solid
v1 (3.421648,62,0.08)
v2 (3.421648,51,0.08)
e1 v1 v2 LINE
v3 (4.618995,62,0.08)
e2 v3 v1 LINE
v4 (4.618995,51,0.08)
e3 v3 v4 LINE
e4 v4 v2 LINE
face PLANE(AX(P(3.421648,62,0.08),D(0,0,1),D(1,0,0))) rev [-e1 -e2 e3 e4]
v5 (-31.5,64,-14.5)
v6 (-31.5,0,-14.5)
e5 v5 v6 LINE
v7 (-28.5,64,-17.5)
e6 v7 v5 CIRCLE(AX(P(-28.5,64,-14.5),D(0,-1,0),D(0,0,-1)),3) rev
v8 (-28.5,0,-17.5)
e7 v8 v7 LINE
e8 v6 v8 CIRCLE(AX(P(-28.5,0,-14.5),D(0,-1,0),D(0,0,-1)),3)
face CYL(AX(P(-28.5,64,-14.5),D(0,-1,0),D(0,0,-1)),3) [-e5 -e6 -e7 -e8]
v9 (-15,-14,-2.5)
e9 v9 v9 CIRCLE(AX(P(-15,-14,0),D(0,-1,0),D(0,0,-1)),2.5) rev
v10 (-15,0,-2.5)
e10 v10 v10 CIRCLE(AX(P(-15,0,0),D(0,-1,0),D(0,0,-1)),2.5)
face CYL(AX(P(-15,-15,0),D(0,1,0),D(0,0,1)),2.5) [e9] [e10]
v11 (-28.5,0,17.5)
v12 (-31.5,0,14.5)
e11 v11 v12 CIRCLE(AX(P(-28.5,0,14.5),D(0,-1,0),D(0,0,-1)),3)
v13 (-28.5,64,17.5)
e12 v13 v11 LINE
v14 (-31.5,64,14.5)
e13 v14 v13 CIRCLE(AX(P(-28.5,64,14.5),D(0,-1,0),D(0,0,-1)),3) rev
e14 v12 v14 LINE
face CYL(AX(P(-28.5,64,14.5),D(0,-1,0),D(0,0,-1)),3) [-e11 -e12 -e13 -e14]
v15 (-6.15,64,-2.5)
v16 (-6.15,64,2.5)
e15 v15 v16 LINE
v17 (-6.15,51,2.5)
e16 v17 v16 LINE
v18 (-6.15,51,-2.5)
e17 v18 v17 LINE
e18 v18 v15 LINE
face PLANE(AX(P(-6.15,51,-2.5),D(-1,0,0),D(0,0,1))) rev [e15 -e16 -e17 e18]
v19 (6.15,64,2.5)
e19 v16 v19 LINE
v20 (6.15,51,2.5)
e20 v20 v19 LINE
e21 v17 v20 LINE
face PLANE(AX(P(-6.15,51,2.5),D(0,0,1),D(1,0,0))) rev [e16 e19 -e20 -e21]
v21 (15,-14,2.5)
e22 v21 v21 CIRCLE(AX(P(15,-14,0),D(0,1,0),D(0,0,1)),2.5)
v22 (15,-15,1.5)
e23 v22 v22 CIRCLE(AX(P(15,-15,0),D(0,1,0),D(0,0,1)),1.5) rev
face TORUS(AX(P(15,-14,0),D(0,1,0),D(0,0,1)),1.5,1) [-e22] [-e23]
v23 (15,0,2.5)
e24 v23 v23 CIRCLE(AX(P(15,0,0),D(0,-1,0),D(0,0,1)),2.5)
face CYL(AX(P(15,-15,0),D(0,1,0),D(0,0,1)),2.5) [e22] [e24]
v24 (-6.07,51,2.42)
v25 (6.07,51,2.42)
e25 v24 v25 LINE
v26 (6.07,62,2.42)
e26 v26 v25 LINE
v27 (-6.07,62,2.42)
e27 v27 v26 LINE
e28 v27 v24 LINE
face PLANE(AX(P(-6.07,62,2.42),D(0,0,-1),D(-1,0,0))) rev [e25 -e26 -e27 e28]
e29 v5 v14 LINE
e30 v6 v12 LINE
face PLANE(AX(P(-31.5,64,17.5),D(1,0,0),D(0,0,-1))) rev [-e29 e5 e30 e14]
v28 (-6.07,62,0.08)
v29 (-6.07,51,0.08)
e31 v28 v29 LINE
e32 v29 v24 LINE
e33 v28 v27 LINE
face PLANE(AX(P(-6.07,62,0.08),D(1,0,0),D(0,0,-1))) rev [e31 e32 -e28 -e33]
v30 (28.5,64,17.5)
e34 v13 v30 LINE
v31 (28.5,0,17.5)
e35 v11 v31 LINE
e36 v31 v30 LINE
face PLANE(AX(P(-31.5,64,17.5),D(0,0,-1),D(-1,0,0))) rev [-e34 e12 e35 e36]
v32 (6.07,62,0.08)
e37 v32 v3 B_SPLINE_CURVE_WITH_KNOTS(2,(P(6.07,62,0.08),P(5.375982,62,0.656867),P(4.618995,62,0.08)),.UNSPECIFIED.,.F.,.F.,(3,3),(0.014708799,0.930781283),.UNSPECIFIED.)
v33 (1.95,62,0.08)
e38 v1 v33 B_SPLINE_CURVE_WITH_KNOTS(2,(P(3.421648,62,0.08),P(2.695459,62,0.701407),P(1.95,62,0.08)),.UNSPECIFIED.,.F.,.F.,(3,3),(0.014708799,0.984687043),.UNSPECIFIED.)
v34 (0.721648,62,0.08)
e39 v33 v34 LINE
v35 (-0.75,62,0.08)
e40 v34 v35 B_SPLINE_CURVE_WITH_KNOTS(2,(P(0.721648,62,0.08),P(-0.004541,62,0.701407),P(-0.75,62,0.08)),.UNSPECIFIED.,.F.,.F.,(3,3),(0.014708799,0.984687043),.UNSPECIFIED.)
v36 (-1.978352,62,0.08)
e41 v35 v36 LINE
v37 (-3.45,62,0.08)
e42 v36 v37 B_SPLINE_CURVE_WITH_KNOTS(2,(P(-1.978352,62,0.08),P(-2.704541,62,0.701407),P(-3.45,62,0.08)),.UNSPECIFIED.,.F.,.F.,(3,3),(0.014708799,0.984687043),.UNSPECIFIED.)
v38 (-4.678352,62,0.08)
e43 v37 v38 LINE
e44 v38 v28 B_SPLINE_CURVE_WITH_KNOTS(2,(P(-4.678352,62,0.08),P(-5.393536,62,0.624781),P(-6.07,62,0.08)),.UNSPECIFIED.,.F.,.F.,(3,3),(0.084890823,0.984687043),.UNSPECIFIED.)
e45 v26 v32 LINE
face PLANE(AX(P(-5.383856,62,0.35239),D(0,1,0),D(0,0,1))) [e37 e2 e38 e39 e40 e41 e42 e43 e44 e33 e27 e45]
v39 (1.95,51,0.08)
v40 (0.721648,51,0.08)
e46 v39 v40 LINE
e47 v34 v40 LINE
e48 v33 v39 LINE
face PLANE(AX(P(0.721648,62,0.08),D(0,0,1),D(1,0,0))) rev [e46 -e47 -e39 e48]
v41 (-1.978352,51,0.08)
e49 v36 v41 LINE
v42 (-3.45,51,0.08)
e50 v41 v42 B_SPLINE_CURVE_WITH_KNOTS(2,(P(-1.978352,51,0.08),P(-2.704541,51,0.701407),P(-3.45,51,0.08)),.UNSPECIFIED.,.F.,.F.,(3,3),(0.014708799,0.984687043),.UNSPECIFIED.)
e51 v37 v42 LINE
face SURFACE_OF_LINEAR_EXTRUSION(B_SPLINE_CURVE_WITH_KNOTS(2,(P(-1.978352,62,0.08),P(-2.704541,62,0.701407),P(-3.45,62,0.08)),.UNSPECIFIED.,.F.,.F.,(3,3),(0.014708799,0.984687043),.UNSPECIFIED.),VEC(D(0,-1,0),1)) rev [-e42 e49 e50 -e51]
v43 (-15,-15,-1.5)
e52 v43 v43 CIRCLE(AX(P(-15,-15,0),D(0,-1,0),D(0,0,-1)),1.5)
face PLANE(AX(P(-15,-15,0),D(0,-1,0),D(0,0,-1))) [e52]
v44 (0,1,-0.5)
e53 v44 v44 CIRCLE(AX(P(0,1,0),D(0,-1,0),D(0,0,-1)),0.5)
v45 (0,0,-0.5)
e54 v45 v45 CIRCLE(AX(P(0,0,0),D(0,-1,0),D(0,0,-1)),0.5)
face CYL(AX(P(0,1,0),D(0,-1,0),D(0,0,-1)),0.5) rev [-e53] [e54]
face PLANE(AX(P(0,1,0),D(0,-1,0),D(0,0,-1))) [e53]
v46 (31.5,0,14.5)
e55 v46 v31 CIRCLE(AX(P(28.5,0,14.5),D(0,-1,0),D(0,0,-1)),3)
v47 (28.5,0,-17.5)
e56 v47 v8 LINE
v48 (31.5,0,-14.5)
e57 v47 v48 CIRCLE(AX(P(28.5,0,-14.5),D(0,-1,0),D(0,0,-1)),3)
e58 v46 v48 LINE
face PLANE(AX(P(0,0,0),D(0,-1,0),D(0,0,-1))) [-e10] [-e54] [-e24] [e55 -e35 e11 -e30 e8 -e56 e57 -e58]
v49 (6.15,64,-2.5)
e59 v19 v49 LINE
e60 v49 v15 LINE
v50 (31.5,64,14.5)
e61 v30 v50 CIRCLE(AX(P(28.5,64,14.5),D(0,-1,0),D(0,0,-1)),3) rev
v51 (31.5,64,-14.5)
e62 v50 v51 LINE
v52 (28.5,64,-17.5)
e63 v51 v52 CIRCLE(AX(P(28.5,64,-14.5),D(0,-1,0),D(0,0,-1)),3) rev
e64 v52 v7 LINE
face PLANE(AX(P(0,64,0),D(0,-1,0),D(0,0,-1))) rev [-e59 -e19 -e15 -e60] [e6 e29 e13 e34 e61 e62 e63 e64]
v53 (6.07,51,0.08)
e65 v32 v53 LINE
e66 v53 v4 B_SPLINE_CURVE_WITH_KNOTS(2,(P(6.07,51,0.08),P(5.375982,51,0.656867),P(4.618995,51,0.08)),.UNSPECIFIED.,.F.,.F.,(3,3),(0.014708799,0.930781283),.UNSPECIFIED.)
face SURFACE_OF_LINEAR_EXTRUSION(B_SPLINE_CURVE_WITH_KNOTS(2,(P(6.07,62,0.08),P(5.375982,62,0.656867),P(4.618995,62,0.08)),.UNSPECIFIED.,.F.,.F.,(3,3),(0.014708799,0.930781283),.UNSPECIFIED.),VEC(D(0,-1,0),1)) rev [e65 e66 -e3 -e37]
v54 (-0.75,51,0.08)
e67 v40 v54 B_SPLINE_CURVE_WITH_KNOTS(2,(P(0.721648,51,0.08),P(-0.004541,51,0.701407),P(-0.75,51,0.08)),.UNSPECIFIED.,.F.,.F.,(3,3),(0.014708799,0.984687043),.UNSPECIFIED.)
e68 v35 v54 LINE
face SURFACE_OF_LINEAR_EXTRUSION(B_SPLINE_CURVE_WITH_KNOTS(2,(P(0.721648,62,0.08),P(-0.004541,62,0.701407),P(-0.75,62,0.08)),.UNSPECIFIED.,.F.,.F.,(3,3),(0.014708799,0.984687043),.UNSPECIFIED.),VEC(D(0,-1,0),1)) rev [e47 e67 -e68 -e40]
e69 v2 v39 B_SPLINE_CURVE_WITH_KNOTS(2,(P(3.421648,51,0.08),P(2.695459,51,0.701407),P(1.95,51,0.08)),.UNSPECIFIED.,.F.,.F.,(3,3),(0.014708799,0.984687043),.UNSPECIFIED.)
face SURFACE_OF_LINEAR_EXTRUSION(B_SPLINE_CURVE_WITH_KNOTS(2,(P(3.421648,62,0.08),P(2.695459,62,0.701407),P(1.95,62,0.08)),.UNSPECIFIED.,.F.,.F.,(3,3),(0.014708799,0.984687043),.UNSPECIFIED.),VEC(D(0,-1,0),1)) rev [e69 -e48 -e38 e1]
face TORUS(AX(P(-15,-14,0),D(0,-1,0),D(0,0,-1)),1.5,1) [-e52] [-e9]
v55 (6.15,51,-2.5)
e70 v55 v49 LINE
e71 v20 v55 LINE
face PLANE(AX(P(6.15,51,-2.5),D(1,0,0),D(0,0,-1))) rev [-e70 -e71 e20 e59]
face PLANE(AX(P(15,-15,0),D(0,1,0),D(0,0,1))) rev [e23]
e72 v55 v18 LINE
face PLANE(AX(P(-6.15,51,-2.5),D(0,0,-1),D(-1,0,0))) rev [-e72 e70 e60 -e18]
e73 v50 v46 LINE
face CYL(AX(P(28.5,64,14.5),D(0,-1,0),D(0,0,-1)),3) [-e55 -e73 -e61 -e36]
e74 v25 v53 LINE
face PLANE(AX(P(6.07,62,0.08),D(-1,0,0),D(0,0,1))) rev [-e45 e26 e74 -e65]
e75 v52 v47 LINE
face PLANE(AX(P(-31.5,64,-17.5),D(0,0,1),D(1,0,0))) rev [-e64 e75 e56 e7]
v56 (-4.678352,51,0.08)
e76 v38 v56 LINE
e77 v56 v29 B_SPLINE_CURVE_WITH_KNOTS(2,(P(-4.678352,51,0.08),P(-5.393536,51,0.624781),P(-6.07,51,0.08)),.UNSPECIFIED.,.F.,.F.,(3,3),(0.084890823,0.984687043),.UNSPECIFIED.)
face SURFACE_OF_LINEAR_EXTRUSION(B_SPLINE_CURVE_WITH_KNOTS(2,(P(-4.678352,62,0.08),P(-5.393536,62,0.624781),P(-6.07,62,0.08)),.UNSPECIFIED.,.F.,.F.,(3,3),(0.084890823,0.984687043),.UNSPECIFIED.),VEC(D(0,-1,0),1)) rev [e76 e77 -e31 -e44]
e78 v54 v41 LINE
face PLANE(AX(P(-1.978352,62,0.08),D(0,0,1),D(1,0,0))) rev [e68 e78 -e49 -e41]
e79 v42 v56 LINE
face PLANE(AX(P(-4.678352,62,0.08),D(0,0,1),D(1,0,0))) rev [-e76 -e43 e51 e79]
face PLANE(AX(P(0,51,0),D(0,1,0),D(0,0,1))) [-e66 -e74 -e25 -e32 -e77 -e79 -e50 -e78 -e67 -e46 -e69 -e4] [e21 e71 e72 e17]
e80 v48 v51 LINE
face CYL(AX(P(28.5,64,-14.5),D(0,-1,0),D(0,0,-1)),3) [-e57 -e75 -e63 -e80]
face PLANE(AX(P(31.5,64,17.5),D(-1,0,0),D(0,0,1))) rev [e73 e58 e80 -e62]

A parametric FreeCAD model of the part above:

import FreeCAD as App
import Part
import Sketcher

V = App.Vector


def edges_at(feature, points):
    """Names of the edges that pass closest to the given points."""
    edges = feature.Shape.Edges
    near = lambda p: min(range(len(edges)), key=lambda i: edges[i].distToShape(Part.Vertex(*p))[0])
    return sorted({f"Edge{near(p) + 1}" for p in points})


def add_polygon(sketch, points):
    """Adds a closed chain of lines whose ends are joined by coincident constraints."""
    first, n = sketch.GeometryCount, len(points)
    for a, b in zip(points, points[1:] + points[:1]):
        sketch.addGeometry(Part.LineSegment(App.Vector(*a, 0), App.Vector(*b, 0)), False)
    for i in range(n):
        sketch.addConstraint(Sketcher.Constraint("Coincident", first + i, 2, first + (i + 1) % n, 1))

doc = App.newDocument("Part")
body = doc.addObject("PartDesign::Body", "Body")

sketch1 = body.newObject("Sketcher::SketchObject", "Sketch")
sketch1.AttachmentSupport = (doc.getObject("XZ_Plane"), [""])
sketch1.MapMode = "FlatFace"
add_polygon(sketch1, [(-32, -18), (-32, 18), (32, 18), (32, -18)])
sketch1.addConstraint([
    Sketcher.Constraint("Vertical", 0),
    Sketcher.Constraint("Horizontal", 1),
    Sketcher.Constraint("Vertical", 2),
    Sketcher.Constraint("Horizontal", 3),
    Sketcher.Constraint("Symmetric", 0, 2, 2, 2, -1, 1),
    Sketcher.Constraint("DistanceX", 1, 1, 1, 2, 63.0),
    Sketcher.Constraint("DistanceY", 0, 1, 0, 2, 35.0),
])
pad1 = body.newObject("PartDesign::Pad", "Pad")
pad1.Profile = sketch1
pad1.Length = 64
pad1.Reversed = True
doc.recompute()

fillet = body.newObject("PartDesign::Fillet", "Fillet")
fillet.Base = (pad1, edges_at(pad1, [
    (31.5, 32, 17.5),
    (-31.5, 32, 17.5),
    (-31.5, 32, -17.5),
    (31.5, 32, -17.5),
]))
fillet.Radius = 3

sketch2 = body.newObject("Sketcher::SketchObject", "Sketch001")
sketch2.AttachmentSupport = (doc.getObject("XZ_Plane"), [""])
sketch2.MapMode = "FlatFace"
sketch2.addGeometry([
    Part.Circle(V(-15, 0, 0), V(0, 0, 1), 2.5),
    Part.Circle(V(15, 0, 0), V(0, 0, 1), 2.5),
], False)
sketch2.addConstraint([
    Sketcher.Constraint("Equal", 0, 1),
    Sketcher.Constraint("Symmetric", 0, 3, 1, 3, -1, 1),
    Sketcher.Constraint("PointOnObject", 0, 3, -1),
    Sketcher.Constraint("Diameter", 0, 5.0),
    Sketcher.Constraint("DistanceX", 0, 3, -1, 1, 15.0),
])
pad2 = body.newObject("PartDesign::Pad", "Pad001")
pad2.Profile = sketch2
pad2.Length = 15
doc.recompute()

fillet2 = body.newObject("PartDesign::Fillet", "Fillet001")
fillet2.Base = (pad2, edges_at(pad2, [(-15, -15, 2.5), (15, -15, -2.5)]))
fillet2.Radius = 1

sketch3 = body.newObject("Sketcher::SketchObject", "Sketch002")
sketch3.AttachmentSupport = (doc.getObject("XZ_Plane"), [""])
sketch3.MapMode = "FlatFace"
sketch3.addGeometry(Part.Circle(V(0, 0, 0), V(0, 0, 1), 0.5), False)
sketch3.addConstraint([
    Sketcher.Constraint("Coincident", 0, 3, -1, 1),
    Sketcher.Constraint("Diameter", 0, 1.0),
])
pocket1 = body.newObject("PartDesign::Pocket", "Pocket")
pocket1.Profile = sketch3
pocket1.Length = 1

sketch4 = body.newObject("Sketcher::SketchObject", "Sketch003")
sketch4.AttachmentSupport = (doc.getObject("XZ_Plane"), [""])
sketch4.MapMode = "FlatFace"
sketch4.AttachmentOffset = App.Placement(V(0, 0, -64), App.Rotation())
add_polygon(sketch4, [(-6, -2), (-6, 2), (6, 2), (6, -2)])
sketch4.addConstraint([
    Sketcher.Constraint("Vertical", 0),
    Sketcher.Constraint("Horizontal", 1),
    Sketcher.Constraint("Vertical", 2),
    Sketcher.Constraint("Horizontal", 3),
    Sketcher.Constraint("Symmetric", 0, 2, 2, 2, -1, 1),
    Sketcher.Constraint("DistanceY", 0, 1, 0, 2, 5.0),
    Sketcher.Constraint("DistanceX", 1, 1, 1, 2, 12.3),
])
pocket2 = body.newObject("PartDesign::Pocket", "Pocket001")
pocket2.Profile = sketch4
pocket2.Length = 13
pocket2.Reversed = True

sketch5 = body.newObject("Sketcher::SketchObject", "Sketch004")
sketch5.AttachmentSupport = (doc.getObject("XZ_Plane"), [""])
sketch5.MapMode = "FlatFace"
sketch5.AttachmentOffset = App.Placement(V(0, 0, -51), App.Rotation())
sketch5.addGeometry([
    Part.LineSegment(V(-6.07, 0.08, 0), V(-6.07, 2.42, 0)),
    Part.LineSegment(V(-6.07, 2.42, 0), V(6.07, 2.42, 0)),
    Part.LineSegment(V(6.07, 2.42, 0), V(6.07, 0.08, 0)),
    Part.BSplineCurve([V(6.07, 0.08, 0), V(5.375982, 0.656867, 0), V(4.618995, 0.08, 0)], [3, 3], [0.014708799, 0.930781283], False, 2, [1, 1, 1], False),
    Part.LineSegment(V(4.618995, 0.08, 0), V(3.421648, 0.08, 0)),
    Part.BSplineCurve([V(3.421648, 0.08, 0), V(2.695459, 0.701407, 0), V(1.95, 0.08, 0)], [3, 3], [0.014708799, 0.984687043], False, 2, [1, 1, 1], False),
    Part.LineSegment(V(1.95, 0.08, 0), V(0.721648, 0.08, 0)),
    Part.BSplineCurve([V(0.721648, 0.08, 0), V(-0.004541, 0.701407, 0), V(-0.75, 0.08, 0)], [3, 3], [0.014708799, 0.984687043], False, 2, [1, 1, 1], False),
    Part.LineSegment(V(-0.75, 0.08, 0), V(-1.978352, 0.08, 0)),
    Part.BSplineCurve([V(-1.978352, 0.08, 0), V(-2.704541, 0.701407, 0), V(-3.45, 0.08, 0)], [3, 3], [0.014708799, 0.984687043], False, 2, [1, 1, 1], False),
    Part.LineSegment(V(-3.45, 0.08, 0), V(-4.678352, 0.08, 0)),
    Part.BSplineCurve([V(-4.678352, 0.08, 0), V(-5.393536, 0.624781, 0), V(-6.07, 0.08, 0)], [3, 3], [0.084890823, 0.984687043], False, 2, [1, 1, 1], False),
], False)
sketch5.addConstraint([
    Sketcher.Constraint("Block", 3),
    Sketcher.Constraint("Block", 5),
    Sketcher.Constraint("Block", 7),
    Sketcher.Constraint("Block", 9),
    Sketcher.Constraint("Block", 11),
    Sketcher.Constraint("Coincident", 0, 2, 1, 1),
    Sketcher.Constraint("Coincident", 1, 2, 2, 1),
    Sketcher.Constraint("Coincident", 2, 2, 3, 1),
    Sketcher.Constraint("Coincident", 3, 2, 4, 1),
    Sketcher.Constraint("Coincident", 4, 2, 5, 1),
    Sketcher.Constraint("Coincident", 5, 2, 6, 1),
    Sketcher.Constraint("Coincident", 6, 2, 7, 1),
    Sketcher.Constraint("Coincident", 7, 2, 8, 1),
    Sketcher.Constraint("Coincident", 8, 2, 9, 1),
    Sketcher.Constraint("Coincident", 9, 2, 10, 1),
    Sketcher.Constraint("Coincident", 10, 2, 11, 1),
    Sketcher.Constraint("Coincident", 11, 2, 0, 1),
    Sketcher.Constraint("Vertical", 0),
    Sketcher.Constraint("Horizontal", 1),
    Sketcher.Constraint("Vertical", 2),
    Sketcher.Constraint("DistanceY", 0, 1, 0, 2, 2.34),
])
pad3 = body.newObject("PartDesign::Pad", "Pad002")
pad3.Profile = sketch5
pad3.Length = 11
pad3.Reversed = True

doc.recompute()
